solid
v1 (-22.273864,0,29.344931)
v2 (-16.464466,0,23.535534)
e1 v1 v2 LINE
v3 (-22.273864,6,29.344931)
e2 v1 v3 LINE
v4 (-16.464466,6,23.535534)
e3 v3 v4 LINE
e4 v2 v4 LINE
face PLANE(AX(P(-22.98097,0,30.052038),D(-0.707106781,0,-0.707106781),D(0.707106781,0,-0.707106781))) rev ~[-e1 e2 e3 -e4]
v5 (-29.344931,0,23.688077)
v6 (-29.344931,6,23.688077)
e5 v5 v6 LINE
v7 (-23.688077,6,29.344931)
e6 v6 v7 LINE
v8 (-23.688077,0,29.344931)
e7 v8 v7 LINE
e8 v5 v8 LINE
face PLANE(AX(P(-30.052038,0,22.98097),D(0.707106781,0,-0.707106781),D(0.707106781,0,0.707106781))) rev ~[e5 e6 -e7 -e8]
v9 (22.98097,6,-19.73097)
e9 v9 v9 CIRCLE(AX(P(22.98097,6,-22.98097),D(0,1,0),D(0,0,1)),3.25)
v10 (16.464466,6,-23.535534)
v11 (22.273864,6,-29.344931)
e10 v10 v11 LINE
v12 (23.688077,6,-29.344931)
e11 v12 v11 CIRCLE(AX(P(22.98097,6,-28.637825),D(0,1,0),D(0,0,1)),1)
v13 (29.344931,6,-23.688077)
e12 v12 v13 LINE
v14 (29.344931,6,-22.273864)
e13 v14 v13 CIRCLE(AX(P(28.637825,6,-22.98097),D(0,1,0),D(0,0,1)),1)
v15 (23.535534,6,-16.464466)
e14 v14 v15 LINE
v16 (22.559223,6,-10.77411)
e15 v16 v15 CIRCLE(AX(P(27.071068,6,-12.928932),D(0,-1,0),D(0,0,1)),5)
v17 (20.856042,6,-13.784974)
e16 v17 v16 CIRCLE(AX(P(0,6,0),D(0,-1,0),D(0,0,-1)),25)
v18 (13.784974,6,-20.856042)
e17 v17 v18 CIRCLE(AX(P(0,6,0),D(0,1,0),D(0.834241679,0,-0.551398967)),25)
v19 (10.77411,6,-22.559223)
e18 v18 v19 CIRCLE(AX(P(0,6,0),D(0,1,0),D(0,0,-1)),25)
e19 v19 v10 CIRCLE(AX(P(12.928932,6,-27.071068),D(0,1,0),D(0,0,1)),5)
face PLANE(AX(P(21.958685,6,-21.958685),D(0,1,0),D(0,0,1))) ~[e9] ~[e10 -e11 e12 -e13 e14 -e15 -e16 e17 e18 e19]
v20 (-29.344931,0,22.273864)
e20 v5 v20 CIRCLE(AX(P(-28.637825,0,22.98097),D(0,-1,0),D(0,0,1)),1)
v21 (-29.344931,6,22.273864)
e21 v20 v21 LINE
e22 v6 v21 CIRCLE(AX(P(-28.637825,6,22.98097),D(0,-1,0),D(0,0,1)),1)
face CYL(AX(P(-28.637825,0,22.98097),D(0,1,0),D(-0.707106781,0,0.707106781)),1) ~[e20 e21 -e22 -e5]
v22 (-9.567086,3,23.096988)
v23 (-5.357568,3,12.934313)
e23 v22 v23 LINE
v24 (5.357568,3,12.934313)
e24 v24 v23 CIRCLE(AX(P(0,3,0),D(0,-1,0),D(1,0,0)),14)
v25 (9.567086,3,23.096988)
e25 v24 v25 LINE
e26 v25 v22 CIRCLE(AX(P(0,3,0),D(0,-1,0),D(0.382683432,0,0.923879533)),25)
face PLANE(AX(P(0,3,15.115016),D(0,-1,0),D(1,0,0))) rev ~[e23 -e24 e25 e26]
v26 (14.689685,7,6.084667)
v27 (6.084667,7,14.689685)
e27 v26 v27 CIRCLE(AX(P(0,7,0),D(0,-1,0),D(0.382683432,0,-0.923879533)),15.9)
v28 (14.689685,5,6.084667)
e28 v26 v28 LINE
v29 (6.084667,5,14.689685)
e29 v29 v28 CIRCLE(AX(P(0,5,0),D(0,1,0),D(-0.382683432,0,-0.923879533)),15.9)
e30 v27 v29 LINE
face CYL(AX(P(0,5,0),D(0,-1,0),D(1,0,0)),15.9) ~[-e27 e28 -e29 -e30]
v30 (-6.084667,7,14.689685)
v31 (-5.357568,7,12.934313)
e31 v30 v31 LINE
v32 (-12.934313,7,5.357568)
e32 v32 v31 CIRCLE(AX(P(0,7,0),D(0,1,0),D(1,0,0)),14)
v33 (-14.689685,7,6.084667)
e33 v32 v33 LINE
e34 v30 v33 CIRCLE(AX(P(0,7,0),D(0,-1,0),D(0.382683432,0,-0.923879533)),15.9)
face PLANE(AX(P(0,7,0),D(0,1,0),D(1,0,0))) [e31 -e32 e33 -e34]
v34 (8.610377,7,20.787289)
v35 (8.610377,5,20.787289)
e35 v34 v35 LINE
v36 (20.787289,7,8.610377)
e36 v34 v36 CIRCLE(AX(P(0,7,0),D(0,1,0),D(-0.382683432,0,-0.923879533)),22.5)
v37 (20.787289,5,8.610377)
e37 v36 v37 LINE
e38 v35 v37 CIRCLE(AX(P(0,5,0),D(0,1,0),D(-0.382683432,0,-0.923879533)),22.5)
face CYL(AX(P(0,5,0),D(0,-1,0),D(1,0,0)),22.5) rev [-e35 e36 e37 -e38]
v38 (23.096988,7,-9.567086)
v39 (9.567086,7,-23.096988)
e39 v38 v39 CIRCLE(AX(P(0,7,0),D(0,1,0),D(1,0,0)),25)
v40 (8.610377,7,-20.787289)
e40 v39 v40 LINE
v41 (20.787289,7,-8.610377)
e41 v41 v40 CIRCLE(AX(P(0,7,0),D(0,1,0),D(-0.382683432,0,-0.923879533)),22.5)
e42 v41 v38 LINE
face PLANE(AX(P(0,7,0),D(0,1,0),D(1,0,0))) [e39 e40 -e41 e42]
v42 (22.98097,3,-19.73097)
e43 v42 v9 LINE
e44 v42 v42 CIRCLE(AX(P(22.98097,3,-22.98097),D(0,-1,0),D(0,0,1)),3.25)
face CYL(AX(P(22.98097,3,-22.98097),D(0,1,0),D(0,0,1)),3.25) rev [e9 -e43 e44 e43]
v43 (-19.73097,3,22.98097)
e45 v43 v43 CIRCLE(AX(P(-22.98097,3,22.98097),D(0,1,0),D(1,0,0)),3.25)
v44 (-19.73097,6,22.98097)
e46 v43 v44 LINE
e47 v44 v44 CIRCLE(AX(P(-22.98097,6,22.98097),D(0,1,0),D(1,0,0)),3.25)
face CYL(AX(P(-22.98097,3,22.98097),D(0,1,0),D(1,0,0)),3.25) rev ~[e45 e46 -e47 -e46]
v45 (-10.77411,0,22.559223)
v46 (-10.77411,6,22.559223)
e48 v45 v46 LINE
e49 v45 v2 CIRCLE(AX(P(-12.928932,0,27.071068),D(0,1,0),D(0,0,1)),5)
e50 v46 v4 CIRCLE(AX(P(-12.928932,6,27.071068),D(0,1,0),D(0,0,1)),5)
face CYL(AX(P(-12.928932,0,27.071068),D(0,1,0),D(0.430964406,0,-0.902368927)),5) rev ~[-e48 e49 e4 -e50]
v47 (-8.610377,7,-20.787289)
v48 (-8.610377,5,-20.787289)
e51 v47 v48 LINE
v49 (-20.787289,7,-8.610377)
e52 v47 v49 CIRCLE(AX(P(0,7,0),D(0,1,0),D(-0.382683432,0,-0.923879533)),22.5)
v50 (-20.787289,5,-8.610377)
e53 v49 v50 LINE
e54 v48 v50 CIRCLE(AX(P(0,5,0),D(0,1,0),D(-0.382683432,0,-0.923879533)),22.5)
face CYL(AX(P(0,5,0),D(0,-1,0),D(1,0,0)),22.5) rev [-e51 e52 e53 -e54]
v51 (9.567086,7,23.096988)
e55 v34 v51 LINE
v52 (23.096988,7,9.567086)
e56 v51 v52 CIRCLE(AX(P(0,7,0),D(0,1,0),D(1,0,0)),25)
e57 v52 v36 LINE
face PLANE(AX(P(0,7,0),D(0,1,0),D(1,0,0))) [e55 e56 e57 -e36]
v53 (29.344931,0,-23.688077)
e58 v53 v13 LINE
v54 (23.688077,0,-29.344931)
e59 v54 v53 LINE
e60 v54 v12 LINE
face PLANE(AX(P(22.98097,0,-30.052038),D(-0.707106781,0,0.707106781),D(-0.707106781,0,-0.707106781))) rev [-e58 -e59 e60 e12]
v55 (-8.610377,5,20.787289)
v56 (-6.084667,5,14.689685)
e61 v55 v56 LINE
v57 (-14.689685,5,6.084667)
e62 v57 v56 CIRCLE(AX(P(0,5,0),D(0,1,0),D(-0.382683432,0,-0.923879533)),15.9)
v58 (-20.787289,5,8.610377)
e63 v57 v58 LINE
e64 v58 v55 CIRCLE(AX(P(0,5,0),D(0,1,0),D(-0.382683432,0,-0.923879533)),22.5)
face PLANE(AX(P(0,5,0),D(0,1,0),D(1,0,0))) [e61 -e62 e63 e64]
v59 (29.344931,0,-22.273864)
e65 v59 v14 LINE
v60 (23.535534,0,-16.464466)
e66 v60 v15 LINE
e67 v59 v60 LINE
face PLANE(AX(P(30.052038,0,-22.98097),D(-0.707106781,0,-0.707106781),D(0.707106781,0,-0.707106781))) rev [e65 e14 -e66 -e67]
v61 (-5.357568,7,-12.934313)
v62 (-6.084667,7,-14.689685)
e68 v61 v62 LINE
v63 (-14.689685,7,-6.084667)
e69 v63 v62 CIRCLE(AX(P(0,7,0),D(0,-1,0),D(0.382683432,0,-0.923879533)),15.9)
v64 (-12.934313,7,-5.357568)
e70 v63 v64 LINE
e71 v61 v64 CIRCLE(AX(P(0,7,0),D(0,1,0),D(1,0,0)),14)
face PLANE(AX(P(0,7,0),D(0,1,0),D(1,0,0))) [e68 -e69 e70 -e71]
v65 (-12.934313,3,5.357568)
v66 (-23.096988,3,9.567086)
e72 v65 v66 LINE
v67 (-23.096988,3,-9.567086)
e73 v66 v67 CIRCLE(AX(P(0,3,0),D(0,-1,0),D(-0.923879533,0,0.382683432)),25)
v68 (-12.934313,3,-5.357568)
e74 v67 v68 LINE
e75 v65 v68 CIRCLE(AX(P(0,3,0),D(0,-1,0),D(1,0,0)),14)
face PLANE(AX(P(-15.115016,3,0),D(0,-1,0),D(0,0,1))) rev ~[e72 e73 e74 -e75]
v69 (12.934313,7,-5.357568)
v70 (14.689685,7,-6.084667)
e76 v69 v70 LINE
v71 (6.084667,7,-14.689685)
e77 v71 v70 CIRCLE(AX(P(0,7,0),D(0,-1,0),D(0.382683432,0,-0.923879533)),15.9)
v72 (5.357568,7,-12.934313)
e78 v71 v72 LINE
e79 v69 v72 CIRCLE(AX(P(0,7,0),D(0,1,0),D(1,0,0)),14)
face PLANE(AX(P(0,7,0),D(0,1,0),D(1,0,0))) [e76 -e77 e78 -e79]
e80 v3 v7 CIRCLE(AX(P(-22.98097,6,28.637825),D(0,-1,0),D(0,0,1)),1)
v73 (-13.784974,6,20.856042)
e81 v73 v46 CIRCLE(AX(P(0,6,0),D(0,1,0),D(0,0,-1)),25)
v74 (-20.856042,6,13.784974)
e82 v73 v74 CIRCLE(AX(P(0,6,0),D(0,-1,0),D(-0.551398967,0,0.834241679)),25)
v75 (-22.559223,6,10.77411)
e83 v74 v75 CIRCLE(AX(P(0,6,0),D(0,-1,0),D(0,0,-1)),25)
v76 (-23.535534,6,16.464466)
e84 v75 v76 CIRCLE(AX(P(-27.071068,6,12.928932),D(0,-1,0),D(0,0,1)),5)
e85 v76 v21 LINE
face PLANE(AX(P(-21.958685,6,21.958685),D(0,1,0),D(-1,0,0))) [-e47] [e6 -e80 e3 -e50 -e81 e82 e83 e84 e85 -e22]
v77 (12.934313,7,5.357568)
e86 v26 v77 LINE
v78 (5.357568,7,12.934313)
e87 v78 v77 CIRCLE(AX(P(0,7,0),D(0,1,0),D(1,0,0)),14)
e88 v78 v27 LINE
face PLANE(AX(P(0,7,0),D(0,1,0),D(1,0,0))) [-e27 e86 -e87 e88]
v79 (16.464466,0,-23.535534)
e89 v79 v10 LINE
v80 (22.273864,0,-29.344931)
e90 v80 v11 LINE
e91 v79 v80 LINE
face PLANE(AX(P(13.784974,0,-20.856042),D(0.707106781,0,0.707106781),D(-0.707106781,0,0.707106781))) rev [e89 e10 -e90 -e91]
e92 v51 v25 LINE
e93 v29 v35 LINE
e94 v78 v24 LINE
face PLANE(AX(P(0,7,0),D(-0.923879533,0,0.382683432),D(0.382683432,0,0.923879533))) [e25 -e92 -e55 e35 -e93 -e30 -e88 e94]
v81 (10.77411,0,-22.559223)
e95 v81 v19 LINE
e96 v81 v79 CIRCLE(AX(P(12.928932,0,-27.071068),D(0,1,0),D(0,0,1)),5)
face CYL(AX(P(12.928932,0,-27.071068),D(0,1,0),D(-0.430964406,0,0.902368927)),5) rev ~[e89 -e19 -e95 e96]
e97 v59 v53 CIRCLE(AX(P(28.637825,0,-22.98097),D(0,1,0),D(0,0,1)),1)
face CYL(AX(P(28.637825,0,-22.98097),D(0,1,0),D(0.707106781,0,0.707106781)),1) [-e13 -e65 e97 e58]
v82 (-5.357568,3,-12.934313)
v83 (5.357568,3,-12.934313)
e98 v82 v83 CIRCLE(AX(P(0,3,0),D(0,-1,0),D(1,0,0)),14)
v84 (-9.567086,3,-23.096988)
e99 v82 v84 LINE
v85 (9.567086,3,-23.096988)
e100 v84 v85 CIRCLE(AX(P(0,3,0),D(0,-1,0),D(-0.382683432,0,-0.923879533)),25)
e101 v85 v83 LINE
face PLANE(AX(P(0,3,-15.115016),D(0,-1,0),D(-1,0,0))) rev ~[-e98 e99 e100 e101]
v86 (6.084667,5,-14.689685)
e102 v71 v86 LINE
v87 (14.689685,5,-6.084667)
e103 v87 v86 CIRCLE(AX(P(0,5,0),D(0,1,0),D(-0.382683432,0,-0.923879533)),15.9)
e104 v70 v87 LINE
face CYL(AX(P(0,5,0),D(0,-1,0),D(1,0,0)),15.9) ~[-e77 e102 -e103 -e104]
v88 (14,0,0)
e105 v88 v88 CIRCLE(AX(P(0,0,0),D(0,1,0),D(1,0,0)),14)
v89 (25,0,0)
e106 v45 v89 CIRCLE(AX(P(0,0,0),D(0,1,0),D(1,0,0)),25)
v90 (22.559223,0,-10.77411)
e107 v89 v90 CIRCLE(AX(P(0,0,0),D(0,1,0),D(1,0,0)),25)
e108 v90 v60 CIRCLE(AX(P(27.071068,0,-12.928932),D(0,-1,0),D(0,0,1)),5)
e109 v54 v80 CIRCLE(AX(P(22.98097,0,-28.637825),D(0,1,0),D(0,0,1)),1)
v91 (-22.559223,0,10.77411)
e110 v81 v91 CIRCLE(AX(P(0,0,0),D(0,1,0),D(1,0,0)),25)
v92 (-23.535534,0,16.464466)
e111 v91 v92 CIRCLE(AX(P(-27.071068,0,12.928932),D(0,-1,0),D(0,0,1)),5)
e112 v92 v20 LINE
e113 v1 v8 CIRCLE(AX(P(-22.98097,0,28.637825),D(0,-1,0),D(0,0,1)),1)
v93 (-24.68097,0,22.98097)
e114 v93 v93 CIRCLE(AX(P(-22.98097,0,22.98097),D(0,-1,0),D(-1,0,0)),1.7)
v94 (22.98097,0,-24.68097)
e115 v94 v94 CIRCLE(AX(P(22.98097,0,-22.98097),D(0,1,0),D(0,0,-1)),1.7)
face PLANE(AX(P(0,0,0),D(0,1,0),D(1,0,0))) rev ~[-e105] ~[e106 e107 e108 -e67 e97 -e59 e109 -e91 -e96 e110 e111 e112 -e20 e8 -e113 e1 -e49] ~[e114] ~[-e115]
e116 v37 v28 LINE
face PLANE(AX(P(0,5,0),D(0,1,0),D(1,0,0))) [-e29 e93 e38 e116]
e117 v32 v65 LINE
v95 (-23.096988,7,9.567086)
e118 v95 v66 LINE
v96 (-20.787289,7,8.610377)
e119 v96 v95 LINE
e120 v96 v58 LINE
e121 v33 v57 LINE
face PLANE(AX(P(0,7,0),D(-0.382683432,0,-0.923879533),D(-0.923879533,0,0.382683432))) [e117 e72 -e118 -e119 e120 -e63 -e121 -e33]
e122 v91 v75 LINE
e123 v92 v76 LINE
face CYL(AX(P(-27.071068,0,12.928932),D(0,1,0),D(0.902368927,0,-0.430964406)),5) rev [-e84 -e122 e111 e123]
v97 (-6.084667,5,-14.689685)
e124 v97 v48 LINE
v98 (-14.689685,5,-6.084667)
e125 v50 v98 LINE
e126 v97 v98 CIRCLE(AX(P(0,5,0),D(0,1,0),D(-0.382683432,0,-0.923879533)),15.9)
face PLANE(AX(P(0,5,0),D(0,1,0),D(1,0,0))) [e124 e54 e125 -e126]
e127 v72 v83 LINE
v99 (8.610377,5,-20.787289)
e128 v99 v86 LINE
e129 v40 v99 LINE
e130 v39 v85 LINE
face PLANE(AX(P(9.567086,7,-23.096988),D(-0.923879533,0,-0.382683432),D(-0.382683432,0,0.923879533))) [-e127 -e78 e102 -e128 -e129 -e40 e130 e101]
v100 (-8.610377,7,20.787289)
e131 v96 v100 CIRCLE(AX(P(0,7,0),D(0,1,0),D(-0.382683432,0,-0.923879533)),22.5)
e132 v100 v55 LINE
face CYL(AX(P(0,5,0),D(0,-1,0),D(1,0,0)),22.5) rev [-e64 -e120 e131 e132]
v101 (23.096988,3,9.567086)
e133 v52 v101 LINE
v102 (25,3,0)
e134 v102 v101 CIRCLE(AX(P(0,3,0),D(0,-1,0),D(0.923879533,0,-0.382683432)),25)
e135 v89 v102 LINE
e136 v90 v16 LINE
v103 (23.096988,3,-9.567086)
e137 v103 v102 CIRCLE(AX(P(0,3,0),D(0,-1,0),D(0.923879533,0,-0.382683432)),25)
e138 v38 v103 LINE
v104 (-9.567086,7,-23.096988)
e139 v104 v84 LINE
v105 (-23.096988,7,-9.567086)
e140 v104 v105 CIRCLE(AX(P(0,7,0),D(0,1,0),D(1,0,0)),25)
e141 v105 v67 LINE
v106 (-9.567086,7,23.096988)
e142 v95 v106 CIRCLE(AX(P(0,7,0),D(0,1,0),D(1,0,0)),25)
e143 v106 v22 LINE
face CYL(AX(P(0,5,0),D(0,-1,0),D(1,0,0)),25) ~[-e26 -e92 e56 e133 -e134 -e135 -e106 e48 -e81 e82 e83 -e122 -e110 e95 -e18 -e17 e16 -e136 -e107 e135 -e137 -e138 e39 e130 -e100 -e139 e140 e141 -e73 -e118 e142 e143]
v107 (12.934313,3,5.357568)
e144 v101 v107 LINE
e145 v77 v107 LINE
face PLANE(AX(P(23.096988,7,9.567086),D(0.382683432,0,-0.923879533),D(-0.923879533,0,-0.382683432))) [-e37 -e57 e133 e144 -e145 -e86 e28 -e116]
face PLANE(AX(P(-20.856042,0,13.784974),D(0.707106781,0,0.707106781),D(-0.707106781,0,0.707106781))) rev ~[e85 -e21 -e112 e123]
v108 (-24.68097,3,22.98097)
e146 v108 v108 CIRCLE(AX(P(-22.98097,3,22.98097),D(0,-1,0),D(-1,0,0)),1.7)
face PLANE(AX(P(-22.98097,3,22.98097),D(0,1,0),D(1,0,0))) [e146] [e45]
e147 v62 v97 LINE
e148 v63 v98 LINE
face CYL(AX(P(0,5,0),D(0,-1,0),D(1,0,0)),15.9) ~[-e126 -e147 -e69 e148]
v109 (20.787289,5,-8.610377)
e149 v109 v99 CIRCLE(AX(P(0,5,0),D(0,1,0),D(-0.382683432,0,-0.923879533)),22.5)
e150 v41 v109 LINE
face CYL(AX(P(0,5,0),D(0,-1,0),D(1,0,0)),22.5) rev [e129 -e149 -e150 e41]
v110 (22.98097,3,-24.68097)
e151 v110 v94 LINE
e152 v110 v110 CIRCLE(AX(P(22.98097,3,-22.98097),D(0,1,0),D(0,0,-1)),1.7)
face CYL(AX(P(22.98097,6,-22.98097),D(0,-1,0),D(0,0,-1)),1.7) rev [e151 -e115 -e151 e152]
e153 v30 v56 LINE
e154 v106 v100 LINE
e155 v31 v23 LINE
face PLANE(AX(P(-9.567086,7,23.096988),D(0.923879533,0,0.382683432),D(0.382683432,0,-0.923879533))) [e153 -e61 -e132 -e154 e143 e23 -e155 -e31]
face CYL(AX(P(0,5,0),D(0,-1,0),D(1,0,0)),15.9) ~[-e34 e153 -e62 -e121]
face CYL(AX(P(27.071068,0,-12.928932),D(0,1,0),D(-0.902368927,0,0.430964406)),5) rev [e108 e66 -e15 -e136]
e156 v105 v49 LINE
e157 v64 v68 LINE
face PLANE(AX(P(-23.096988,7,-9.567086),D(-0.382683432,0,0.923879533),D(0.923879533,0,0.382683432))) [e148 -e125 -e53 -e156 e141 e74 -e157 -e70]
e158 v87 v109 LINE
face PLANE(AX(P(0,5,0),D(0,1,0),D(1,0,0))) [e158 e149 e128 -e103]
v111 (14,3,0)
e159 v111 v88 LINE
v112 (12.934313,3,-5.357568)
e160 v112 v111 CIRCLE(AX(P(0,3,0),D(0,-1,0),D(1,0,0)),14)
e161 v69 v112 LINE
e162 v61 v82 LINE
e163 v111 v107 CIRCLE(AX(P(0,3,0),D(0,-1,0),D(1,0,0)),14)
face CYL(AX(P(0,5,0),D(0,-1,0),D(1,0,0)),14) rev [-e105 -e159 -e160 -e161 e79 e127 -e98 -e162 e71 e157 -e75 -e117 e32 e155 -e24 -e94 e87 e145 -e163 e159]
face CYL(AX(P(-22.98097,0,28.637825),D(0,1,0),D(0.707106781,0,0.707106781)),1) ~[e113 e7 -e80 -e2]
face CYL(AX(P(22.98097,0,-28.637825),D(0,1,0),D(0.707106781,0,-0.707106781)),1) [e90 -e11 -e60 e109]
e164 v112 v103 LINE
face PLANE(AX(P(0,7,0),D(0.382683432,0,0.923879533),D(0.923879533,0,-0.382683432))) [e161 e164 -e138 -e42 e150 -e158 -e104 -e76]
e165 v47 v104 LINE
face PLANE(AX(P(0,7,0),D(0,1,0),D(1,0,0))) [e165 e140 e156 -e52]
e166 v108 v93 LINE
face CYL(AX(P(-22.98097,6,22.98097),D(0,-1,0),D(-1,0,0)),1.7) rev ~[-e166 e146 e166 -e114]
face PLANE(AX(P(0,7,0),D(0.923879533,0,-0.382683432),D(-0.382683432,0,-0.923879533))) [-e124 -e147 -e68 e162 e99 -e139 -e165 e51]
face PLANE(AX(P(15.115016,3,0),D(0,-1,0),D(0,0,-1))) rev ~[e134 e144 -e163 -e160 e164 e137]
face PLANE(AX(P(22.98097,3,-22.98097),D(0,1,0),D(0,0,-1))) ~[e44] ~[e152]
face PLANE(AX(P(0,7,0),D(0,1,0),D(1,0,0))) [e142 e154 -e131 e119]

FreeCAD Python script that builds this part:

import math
import FreeCAD as App
import Part
import Sketcher
Q = App.Units.Quantity


def edges_at(feature, points):
    """Names of the edges that pass closest to the given points."""
    edges = feature.Shape.Edges
    near = lambda p: min(range(len(edges)), key=lambda i: edges[i].distToShape(Part.Vertex(*p))[0])
    return sorted({f"Edge{near(p) + 1}" for p in points})

doc = App.newDocument("Part")
body = doc.addObject("PartDesign::Body", "Body")

sketch1 = body.newObject("Sketcher::SketchObject", "Sketch")
sketch1.AttachmentSupport = (doc.getObject("XZ_Plane"), [""])
sketch1.MapMode = "FlatFace"
sketch1.addGeometry([
    Part.Circle(App.Vector(0, 0, 0), App.Vector(0, 0, 1), 25),
    Part.Circle(App.Vector(0, 0, 0), App.Vector(0, 0, 1), 14),
], False)
sketch1.addConstraint([
    Sketcher.Constraint("Coincident", 0, 3, -1, 1),
    Sketcher.Constraint("Coincident", 1, 3, -1, 1),
    Sketcher.Constraint("Diameter", 0, Q("50 mm")),
    Sketcher.Constraint("Diameter", 1, Q("28 mm")),
])
pad1 = body.newObject("PartDesign::Pad", "Pad")
pad1.Profile = sketch1
pad1.Length = 5
pad1.Reversed = True

sketch2 = body.newObject("Sketcher::SketchObject", "Sketch001")
sketch2.AttachmentSupport = (doc.getObject("XZ_Plane"), [""])
sketch2.MapMode = "FlatFace"
sketch2.AttachmentOffset = App.Placement(App.Vector(0, 0, -5), App.Rotation())
sketch2.addGeometry([
    Part.Circle(App.Vector(0, 0, 0), App.Vector(0, 0, 1), 25),
    Part.Circle(App.Vector(0, 0, 0), App.Vector(0, 0, 1), 22),
], False)
sketch2.addConstraint([
    Sketcher.Constraint("Coincident", 0, 3, -1, 1),
    Sketcher.Constraint("Coincident", 1, 3, -1, 1),
    Sketcher.Constraint("Diameter", 0, Q("50 mm")),
    Sketcher.Constraint("Diameter", 1, Q("45 mm")),
])
pad2 = body.newObject("PartDesign::Pad", "Pad001")
pad2.Profile = sketch2
pad2.Length = 2
pad2.Reversed = True

sketch3 = body.newObject("Sketcher::SketchObject", "Sketch002")
sketch3.AttachmentSupport = (doc.getObject("XZ_Plane"), [""])
sketch3.MapMode = "FlatFace"
sketch3.AttachmentOffset = App.Placement(App.Vector(0, 0, -5), App.Rotation())
sketch3.addGeometry([
    Part.Circle(App.Vector(0, 0, 0), App.Vector(0, 0, 1), 16),
    Part.Circle(App.Vector(0, 0, 0), App.Vector(0, 0, 1), 14),
], False)
sketch3.addConstraint([
    Sketcher.Constraint("Coincident", 0, 3, -1, 1),
    Sketcher.Constraint("Coincident", 1, 3, -1, 1),
    Sketcher.Constraint("Diameter", 1, Q("28 mm")),
    Sketcher.Constraint("Diameter", 0, Q("31.8 mm")),
])
pad3 = body.newObject("PartDesign::Pad", "Pad002")
pad3.Profile = sketch3
pad3.Length = 2
pad3.Reversed = True

sketch4 = body.newObject("Sketcher::SketchObject", "Sketch003")
sketch4.AttachmentSupport = (doc.getObject("XZ_Plane"), [""])
sketch4.MapMode = "FlatFace"
sketch4.AttachmentOffset = App.Placement(App.Vector(0, 0, -7), App.Rotation())
sketch4.addGeometry([
    Part.LineSegment(App.Vector(-10, -23, 0), App.Vector(0, 0, 0)),
    Part.LineSegment(App.Vector(0, 0, 0), App.Vector(10, -23, 0)),
    Part.ArcOfCircle(Part.Circle(App.Vector(0, 0, 0), App.Vector(0, 0, 1), 25), math.radians(-112), math.radians(-68)),
], False)
sketch4.addConstraint([
    Sketcher.Constraint("Coincident", 0, 2, 1, 1),
    Sketcher.Constraint("Coincident", 1, 2, 2, 2),
    Sketcher.Constraint("Coincident", 2, 1, 0, 1),
    Sketcher.Constraint("Coincident", 2, 3, -1, 1),
    Sketcher.Constraint("Coincident", 0, 2, -1, 1),
    Sketcher.Constraint("Horizontal", 1, 2, 2, 1),
    Sketcher.Constraint("Radius", 2, Q("25 mm")),
    Sketcher.Constraint("Angle", 0, Q("67.5 deg")),
])
pocket1 = body.newObject("PartDesign::Pocket", "Pocket")
pocket1.Profile = sketch4
pocket1.Length = 4
pocket1.Reversed = True
doc.recompute()

polarpattern = body.newObject("PartDesign::PolarPattern", "PolarPattern")
polarpattern.Originals = [pocket1]
polarpattern.Axis = (doc.getObject("Y_Axis"), [""])
polarpattern.Angle = 360
polarpattern.Occurrences = 4
body.Tip = polarpattern

sketch5 = body.newObject("Sketcher::SketchObject", "Sketch004")
sketch5.AttachmentSupport = (doc.getObject("XZ_Plane"), [""])
sketch5.MapMode = "FlatFace"
sketch5.addGeometry([
    Part.LineSegment(App.Vector(-23, 30, 0), App.Vector(-30, 23, 0)),
    Part.LineSegment(App.Vector(-30, 23, 0), App.Vector(-21, 14, 0)),
    Part.ArcOfCircle(Part.Circle(App.Vector(0, 0, 0), App.Vector(0, 0, 1), 25), math.radians(123), math.radians(147)),
    Part.LineSegment(App.Vector(-14, 21, 0), App.Vector(-23, 30, 0)),
], False)
sketch5.addConstraint([
    Sketcher.Constraint("Coincident", 0, 2, 1, 1),
    Sketcher.Constraint("Coincident", 1, 2, 2, 2),
    Sketcher.Constraint("Coincident", 2, 1, 3, 1),
    Sketcher.Constraint("Coincident", 3, 2, 0, 1),
    Sketcher.Constraint("Coincident", 2, 3, -1, 1),
    Sketcher.Constraint("Perpendicular", 0, 1),
    Sketcher.Constraint("Parallel", 1, 3),
    Sketcher.Constraint("Equal", 1, 3),
    Sketcher.Constraint("Radius", 2, Q("25 mm")),
    Sketcher.Constraint("Angle", 0, Q("-135 deg")),
    Sketcher.Constraint("Distance", 0, Q("10 mm")),
    Sketcher.Constraint("DistanceX", 0, 2, -1, 1, Q("30.052038 mm")),
])
pad4 = body.newObject("PartDesign::Pad", "Pad003")
pad4.Profile = sketch5
pad4.Length = 6
pad4.Reversed = True

sketch6 = body.newObject("Sketcher::SketchObject", "Sketch005")
sketch6.AttachmentSupport = (doc.getObject("XZ_Plane"), [""])
sketch6.MapMode = "FlatFace"
sketch6.AttachmentOffset = App.Placement(App.Vector(0, 0, -6), App.Rotation())
sketch6.addGeometry(Part.Circle(App.Vector(-23, 23, 0), App.Vector(0, 0, 1), 1.7), False)
sketch6.addConstraint([
    Sketcher.Constraint("Diameter", 0, Q("3.4 mm")),
    Sketcher.Constraint("DistanceX", 0, 3, -1, 1, Q("22.98097 mm")),
    Sketcher.Constraint("DistanceY", -1, 1, 0, 3, Q("22.98097 mm")),
])
doc.recompute()
hole = body.newObject("PartDesign::Hole", "Hole")
hole.Profile = sketch6
hole.ThreadType = "None"
hole.Diameter = 3.4
hole.DepthType = "Dimension"
hole.Depth = 6
hole.DrillPoint = "Flat"
hole.HoleCutType = "Counterbore"
hole.HoleCutDiameter = 6.5
hole.HoleCutDepth = 3
hole.Reversed = True
doc.recompute()

fillet = body.newObject("PartDesign::Fillet", "Fillet")
fillet.Base = (hole, edges_at(hole, [(-20.856, 3, 13.785), (-13.785, 3, 20.856)]))
fillet.Radius = 5
doc.recompute()

datumplane = body.newObject("PartDesign::Plane", "DatumPlane")
datumplane.Placement = App.Placement(App.Vector(0, 0, 0), App.Rotation(App.Vector(-0.707106781, 0, -0.707106781), App.Vector(0, -1, 0), App.Vector(-0.707106781, 0, 0.707106781), "ZXY"))
mirrored = body.newObject("PartDesign::Mirrored", "Mirrored")
mirrored.Originals = [pad4, hole]
mirrored.MirrorPlane = (datumplane, [""])
body.Tip = mirrored
doc.recompute()

fillet2 = body.newObject("PartDesign::Fillet", "Fillet001")
fillet2.Base = (mirrored, edges_at(mirrored, [(13.785, 3, -20.856), (20.856, 3, -13.785)]))
fillet2.Radius = 5
doc.recompute()

fillet3 = body.newObject("PartDesign::Fillet", "Fillet002")
fillet3.Base = (fillet2, edges_at(fillet2, [
    (-30.052, 3, 22.981),
    (-22.981, 3, 30.052),
    (22.981, 3, -30.052),
    (30.052, 3, -22.981),
]))
fillet3.Radius = 1

doc.recompute()
